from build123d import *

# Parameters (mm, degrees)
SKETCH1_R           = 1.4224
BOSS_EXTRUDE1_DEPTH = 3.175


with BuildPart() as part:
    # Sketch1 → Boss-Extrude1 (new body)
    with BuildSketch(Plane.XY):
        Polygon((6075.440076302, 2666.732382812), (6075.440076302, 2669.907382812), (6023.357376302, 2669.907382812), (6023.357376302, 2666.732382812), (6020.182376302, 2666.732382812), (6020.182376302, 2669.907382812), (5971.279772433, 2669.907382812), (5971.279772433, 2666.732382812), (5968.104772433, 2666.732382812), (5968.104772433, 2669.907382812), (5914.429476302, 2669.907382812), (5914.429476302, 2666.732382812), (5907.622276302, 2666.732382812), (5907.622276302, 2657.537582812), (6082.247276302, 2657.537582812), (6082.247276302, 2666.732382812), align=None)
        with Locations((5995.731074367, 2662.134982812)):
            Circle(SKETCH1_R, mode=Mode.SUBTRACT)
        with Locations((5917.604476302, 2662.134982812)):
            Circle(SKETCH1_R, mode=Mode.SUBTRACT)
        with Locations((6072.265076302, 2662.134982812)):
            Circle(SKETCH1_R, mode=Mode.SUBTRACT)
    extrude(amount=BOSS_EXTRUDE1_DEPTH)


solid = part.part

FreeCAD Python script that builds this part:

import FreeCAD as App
import Part
import Sketcher
from FreeCAD import Vector
Q = App.Units.Quantity


def add_polygon(sketch, points):
    """Adds a closed chain of lines whose ends are joined by coincident constraints."""
    first, n = sketch.GeometryCount, len(points)
    for a, b in zip(points, points[1:] + points[:1]):
        sketch.addGeometry(Part.LineSegment(App.Vector(*a, 0), App.Vector(*b, 0)), False)
    for i in range(n):
        sketch.addConstraint(Sketcher.Constraint("Coincident", first + i, 2, first + (i + 1) % n, 1))

doc = App.newDocument("Part")
params = doc.addObject("Spreadsheet::Sheet", "Params")
for row, (alias, value) in enumerate([
    ("sketch1_diameter", "0.112 in"),
    ("sketch1_width", "0.125 in"),
    ("sketch1_width2", "0.268 in"),
    ("sketch1_width3", "6.875 in"),
    ("sketch1_height", "0.362 in"),
    ("pad1_length", "0.125 in"),
], start=1):
    params.set(f"A{row}", alias)
    params.set(f"B{row}", "=" + value)
    params.setAlias(f"B{row}", alias)

body = doc.addObject("PartDesign::Body", "Body")

# Sketch on XY plane
sketch1 = body.newObject("Sketcher::SketchObject", "Sketch")
sketch1.AttachmentSupport = (doc.getObject("XY_Plane"), [""])
sketch1.MapMode = "FlatFace"
add_polygon(sketch1, [(6075.4, 2666.7), (6075.4, 2669.9), (6023.4, 2669.9), (6023.4, 2666.7), (6020.2, 2666.7), (6020.2, 2669.9), (5971.3, 2669.9), (5971.3, 2666.7), (5968.1, 2666.7), (5968.1, 2669.9), (5914.4, 2669.9), (5914.4, 2666.7), (5907.6, 2666.7), (5907.6, 2657.5), (6082.2, 2657.5), (6082.2, 2666.7)])  # lines 0-15
sketch1.addGeometry(Part.Circle(Vector(5917.6, 2662.1, 0), Vector(0, 0, 1), 1.4), False)  # 16
sketch1.addGeometry(Part.Circle(Vector(5995.7, 2662.1, 0), Vector(0, 0, 1), 1.4), False)  # 17
sketch1.addGeometry(Part.Circle(Vector(6072.3, 2662.1, 0), Vector(0, 0, 1), 1.4), False)  # 18
sketch1.addConstraint([
    Sketcher.Constraint("Vertical", 0),
    Sketcher.Constraint("Horizontal", 1),
    Sketcher.Constraint("Vertical", 2),
    Sketcher.Constraint("Horizontal", 3),
    Sketcher.Constraint("Vertical", 4),
    Sketcher.Constraint("Horizontal", 5),
    Sketcher.Constraint("Vertical", 6),
    Sketcher.Constraint("Horizontal", 7),
    Sketcher.Constraint("Vertical", 8),
    Sketcher.Constraint("Horizontal", 9),
    Sketcher.Constraint("Vertical", 10),
    Sketcher.Constraint("Horizontal", 11),
    Sketcher.Constraint("Vertical", 12),
    Sketcher.Constraint("Horizontal", 13),
    Sketcher.Constraint("Vertical", 14),
    Sketcher.Constraint("Horizontal", 15),
    Sketcher.Constraint("Equal", 16, 17),
    Sketcher.Constraint("Equal", 17, 18),
    Sketcher.Constraint("Horizontal", 16, 3, 17, 3),
    Sketcher.Constraint("Horizontal", 17, 3, 18, 3),
    Sketcher.Constraint("Horizontal", 1, 2, 4, 2),
    Sketcher.Constraint("Horizontal", 3, 2, 6, 2),
    Sketcher.Constraint("Horizontal", 5, 2, 8, 2),
    Sketcher.Constraint("Horizontal", 7, 2, 10, 2),
    Sketcher.Constraint("Horizontal", 11, 2, 14, 2),
    Sketcher.Constraint("Equal", 3, 7),
    Sketcher.Constraint("Equal", 11, 15),
    Sketcher.Constraint("Equal", 7, 0),
    Sketcher.Constraint("Diameter", 16, Q("0.112 in")),
    Sketcher.Constraint("DistanceX", 3, 2, 3, 1, Q("0.125 in")),
    Sketcher.Constraint("DistanceX", 11, 2, 11, 1, Q("0.268 in")),
    Sketcher.Constraint("DistanceX", 13, 1, 13, 2, Q("6.875 in")),
    Sketcher.Constraint("DistanceY", 12, 2, 12, 1, Q("0.362 in")),
    Sketcher.Constraint("DistanceX", 1, 2, 1, 1, Q("2.0505 in")),
    Sketcher.Constraint("DistanceX", 16, 3, 18, 3, Q("6.089 in")),
    Sketcher.Constraint("DistanceX", 18, 3, 0, 2, Q("0.125 in")),
    Sketcher.Constraint("DistanceY", 18, 3, 0, 2, Q("0.306 in")),
    Sketcher.Constraint("DistanceX", 16, 3, 17, 3, 78.126598),
    Sketcher.Constraint("DistanceX", 5, 2, 17, 3, 24.451302),
    Sketcher.Constraint("DistanceX", -1, 1, 16, 3, 5917.604476),
    Sketcher.Constraint("DistanceY", -1, 1, 16, 3, 2662.134983),
])
sketch1.setExpression("Constraints[44]", "Params.sketch1_diameter")
sketch1.setExpression("Constraints[45]", "Params.sketch1_width")
sketch1.setExpression("Constraints[46]", "Params.sketch1_width2")
sketch1.setExpression("Constraints[47]", "Params.sketch1_width3")
sketch1.setExpression("Constraints[48]", "Params.sketch1_height")
pad1 = body.newObject("PartDesign::Pad", "Pad")
pad1.Profile = sketch1
pad1.setExpression("Length", "Params.pad1_length")

doc.recompute()
